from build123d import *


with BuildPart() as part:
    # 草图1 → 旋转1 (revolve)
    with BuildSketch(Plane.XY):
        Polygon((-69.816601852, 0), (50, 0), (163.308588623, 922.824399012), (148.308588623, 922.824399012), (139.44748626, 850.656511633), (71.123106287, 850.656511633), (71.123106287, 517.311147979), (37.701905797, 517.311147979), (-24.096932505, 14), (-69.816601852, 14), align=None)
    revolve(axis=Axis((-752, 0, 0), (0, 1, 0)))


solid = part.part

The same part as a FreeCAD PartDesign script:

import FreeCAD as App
import Part
import Sketcher

V = App.Vector
Q = App.Units.Quantity


def add_polygon(sketch, points):
    """Adds a closed chain of lines whose ends are joined by coincident constraints."""
    first, n = sketch.GeometryCount, len(points)
    for a, b in zip(points, points[1:] + points[:1]):
        sketch.addGeometry(Part.LineSegment(App.Vector(*a, 0), App.Vector(*b, 0)), False)
    for i in range(n):
        sketch.addConstraint(Sketcher.Constraint("Coincident", first + i, 2, first + (i + 1) % n, 1))

doc = App.newDocument("Part")
body = doc.addObject("PartDesign::Body", "Body")

sketch1 = body.newObject("Sketcher::SketchObject", "Sketch")
sketch1.AttachmentSupport = (doc.getObject("XY_Plane"), [""])
sketch1.MapMode = "FlatFace"
add_polygon(sketch1, [(-69.816602, 0), (50, 0), (163.308589, 922.824399), (148.308589, 922.824399), (139.447486, 850.656512), (71.123106, 850.656512), (71.123106, 517.311148), (37.701906, 517.311148), (-24.096933, 14), (-69.816602, 14)])
sketch1.addGeometry(Part.LineSegment(V(-752, 0, 0), V(-752, 922.824399, 0)), True)
sketch1.addConstraint([
    Sketcher.Constraint("Horizontal", 0),
    Sketcher.Constraint("Horizontal", 2),
    Sketcher.Constraint("Horizontal", 4),
    Sketcher.Constraint("Vertical", 5),
    Sketcher.Constraint("Horizontal", 6),
    Sketcher.Constraint("Horizontal", 8),
    Sketcher.Constraint("Vertical", 9),
    Sketcher.Constraint("Vertical", 10),
    Sketcher.Constraint("PointOnObject", 0, 2, -1),
    Sketcher.Constraint("PointOnObject", 10, 1, -1),
    Sketcher.Constraint("Parallel", 1, 3),
    Sketcher.Constraint("Parallel", 3, 7),
    Sketcher.Constraint("Horizontal", 2, 2, 10, 2),
    Sketcher.Constraint("DistanceX", 2, 2, 2, 1, 15.0),
    Sketcher.Constraint("DistanceY", 9, 2, 9, 1, 14.0),
    Sketcher.Constraint("Angle", 1, Q("83 deg")),
    Sketcher.Constraint("DistanceX", -1, 1, 0, 2, 50.0),
    Sketcher.Constraint("DistanceX", 10, 1, -1, 1, 752.0),
    Sketcher.Constraint("DistanceX", 0, 1, 0, 2, 119.816602),
    Sketcher.Constraint("DistanceX", 6, 2, 6, 1, 33.4212),
    Sketcher.Constraint("DistanceY", 10, 1, 10, 2, 922.824399),
    Sketcher.Constraint("DistanceX", 4, 2, 4, 1, 68.32438),
    Sketcher.Constraint("DistanceX", 8, 2, 8, 1, 45.719669),
    Sketcher.Constraint("DistanceY", -1, 1, 3, 2, 850.656512),
])
revolution = body.newObject("PartDesign::Revolution", "Revolution")
revolution.Profile = sketch1
revolution.ReferenceAxis = (sketch1, ["Axis0"])
revolution.Angle = 360

doc.recompute()
